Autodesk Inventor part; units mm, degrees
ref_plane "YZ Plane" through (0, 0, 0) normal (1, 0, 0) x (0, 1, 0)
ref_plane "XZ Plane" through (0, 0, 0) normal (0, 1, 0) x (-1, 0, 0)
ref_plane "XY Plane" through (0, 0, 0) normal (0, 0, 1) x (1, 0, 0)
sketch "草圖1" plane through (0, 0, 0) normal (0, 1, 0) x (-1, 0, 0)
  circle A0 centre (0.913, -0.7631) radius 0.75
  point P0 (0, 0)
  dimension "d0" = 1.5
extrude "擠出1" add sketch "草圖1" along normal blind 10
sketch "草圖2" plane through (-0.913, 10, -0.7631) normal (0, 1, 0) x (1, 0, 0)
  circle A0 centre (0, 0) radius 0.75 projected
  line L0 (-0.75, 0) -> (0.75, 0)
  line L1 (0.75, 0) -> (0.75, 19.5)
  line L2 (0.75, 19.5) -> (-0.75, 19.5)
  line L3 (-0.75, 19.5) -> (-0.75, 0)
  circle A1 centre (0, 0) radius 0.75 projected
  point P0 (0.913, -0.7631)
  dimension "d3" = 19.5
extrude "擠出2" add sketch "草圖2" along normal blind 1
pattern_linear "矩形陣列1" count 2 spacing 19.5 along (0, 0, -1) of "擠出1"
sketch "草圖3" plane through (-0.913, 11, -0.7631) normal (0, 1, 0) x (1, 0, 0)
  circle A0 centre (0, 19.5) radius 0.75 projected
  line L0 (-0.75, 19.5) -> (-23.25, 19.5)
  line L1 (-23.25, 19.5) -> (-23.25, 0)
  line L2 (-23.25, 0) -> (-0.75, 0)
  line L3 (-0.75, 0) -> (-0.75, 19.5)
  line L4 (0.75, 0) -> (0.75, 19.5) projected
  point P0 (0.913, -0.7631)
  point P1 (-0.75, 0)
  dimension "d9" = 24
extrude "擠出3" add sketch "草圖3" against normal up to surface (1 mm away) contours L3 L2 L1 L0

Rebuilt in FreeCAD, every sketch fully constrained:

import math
import FreeCAD as App
import Part
import Sketcher

doc = App.newDocument("Part")
body = doc.addObject("PartDesign::Body", "Body")

# Sketch on XZ plane
sketch1 = body.newObject("Sketcher::SketchObject", "Sketch")
sketch1.AttachmentSupport = (doc.getObject("XZ_Plane"), [""])
sketch1.MapMode = "FlatFace"
sketch1.addGeometry(Part.Circle(App.Vector(-0.9, -0.8, 0), App.Vector(0, 0, 1), 0.8), False)
sketch1.addConstraint([
    Sketcher.Constraint("Diameter", 0, 1.5),
    Sketcher.Constraint("DistanceX", 0, 3, -1, 1, 0.913),
    Sketcher.Constraint("DistanceY", 0, 3, -1, 1, 0.763),
])
pad1 = body.newObject("PartDesign::Pad", "Pad")
pad1.Profile = sketch1
pad1.Length = 10
pad1.Reversed = True

# Sketch on XZ plane
sketch2 = body.newObject("Sketcher::SketchObject", "Sketch001")
sketch2.AttachmentSupport = (doc.getObject("XZ_Plane"), [""])
sketch2.MapMode = "FlatFace"
sketch2.AttachmentOffset = App.Placement(App.Vector(0, 0, -10), App.Rotation())
sketch2.addGeometry([
    Part.ArcOfCircle(Part.Circle(App.Vector(-0.9, -0.8, 0), App.Vector(0, 0, 1), 0.8), math.radians(0), math.radians(180)),
    Part.LineSegment(App.Vector(-0.2, -0.8, 0), App.Vector(-0.2, -20.3, 0)),
    Part.LineSegment(App.Vector(-0.2, -20.3, 0), App.Vector(-1.7, -20.3, 0)),
    Part.LineSegment(App.Vector(-1.7, -20.3, 0), App.Vector(-1.7, -0.8, 0)),
], False)
sketch2.addConstraint([
    Sketcher.Constraint("Tangent", 0, 1, 1, 1),
    Sketcher.Constraint("Coincident", 1, 2, 2, 1),
    Sketcher.Constraint("Coincident", 2, 2, 3, 1),
    Sketcher.Constraint("Tangent", 3, 2, 0, 2),
    Sketcher.Constraint("Vertical", 1),
    Sketcher.Constraint("Horizontal", 2),
    Sketcher.Constraint("Vertical", 3),
    Sketcher.Constraint("DistanceY", 1, 2, 1, 1, 19.5),
    Sketcher.Constraint("Radius", 0, 0.75),
    Sketcher.Constraint("DistanceX", 0, 3, -1, 1, 0.913),
    Sketcher.Constraint("DistanceY", 0, 3, -1, 1, 0.763),
])
pad2 = body.newObject("PartDesign::Pad", "Pad001")
pad2.Profile = sketch2
pad2.Length = 1
pad2.Reversed = True
doc.recompute()

linearpattern = body.newObject("PartDesign::LinearPattern", "LinearPattern")
linearpattern.Originals = [pad1]
linearpattern.Direction = (doc.getObject("Z_Axis"), [""])
linearpattern.Mode = "offset"
linearpattern.Offset = 19.5
linearpattern.Occurrences = 2
linearpattern.Reversed = True
body.Tip = linearpattern

# Sketch on XZ plane
sketch3 = body.newObject("Sketcher::SketchObject", "Sketch002")
sketch3.AttachmentSupport = (doc.getObject("XZ_Plane"), [""])
sketch3.MapMode = "FlatFace"
sketch3.AttachmentOffset = App.Placement(App.Vector(0, 0, -11), App.Rotation())
sketch3.addGeometry([
    Part.LineSegment(App.Vector(-2, -1, 0), App.Vector(-2, -20, 0)),
    Part.LineSegment(App.Vector(-2, -20, 0), App.Vector(-24, -20, 0)),
    Part.LineSegment(App.Vector(-24, -20, 0), App.Vector(-24, -1, 0)),
    Part.LineSegment(App.Vector(-24, -1, 0), App.Vector(-2, -1, 0)),
], False)
sketch3.addConstraint([
    Sketcher.Constraint("Coincident", 0, 2, 1, 1),
    Sketcher.Constraint("Coincident", 1, 2, 2, 1),
    Sketcher.Constraint("Coincident", 2, 2, 3, 1),
    Sketcher.Constraint("Coincident", 3, 2, 0, 1),
    Sketcher.Constraint("Vertical", 0),
    Sketcher.Constraint("Horizontal", 1),
    Sketcher.Constraint("Vertical", 2),
    Sketcher.Constraint("Horizontal", 3),
    Sketcher.Constraint("DistanceX", 1, 2, 1, 1, 22.5),
    Sketcher.Constraint("DistanceY", 0, 2, 0, 1, 19.5),
    Sketcher.Constraint("DistanceX", 0, 2, -1, 1, 1.663),
    Sketcher.Constraint("DistanceY", 0, 2, -1, 1, 20.263),
])
pad3 = body.newObject("PartDesign::Pad", "Pad002")
pad3.Profile = sketch3
pad3.Length = 1

doc.recompute()
